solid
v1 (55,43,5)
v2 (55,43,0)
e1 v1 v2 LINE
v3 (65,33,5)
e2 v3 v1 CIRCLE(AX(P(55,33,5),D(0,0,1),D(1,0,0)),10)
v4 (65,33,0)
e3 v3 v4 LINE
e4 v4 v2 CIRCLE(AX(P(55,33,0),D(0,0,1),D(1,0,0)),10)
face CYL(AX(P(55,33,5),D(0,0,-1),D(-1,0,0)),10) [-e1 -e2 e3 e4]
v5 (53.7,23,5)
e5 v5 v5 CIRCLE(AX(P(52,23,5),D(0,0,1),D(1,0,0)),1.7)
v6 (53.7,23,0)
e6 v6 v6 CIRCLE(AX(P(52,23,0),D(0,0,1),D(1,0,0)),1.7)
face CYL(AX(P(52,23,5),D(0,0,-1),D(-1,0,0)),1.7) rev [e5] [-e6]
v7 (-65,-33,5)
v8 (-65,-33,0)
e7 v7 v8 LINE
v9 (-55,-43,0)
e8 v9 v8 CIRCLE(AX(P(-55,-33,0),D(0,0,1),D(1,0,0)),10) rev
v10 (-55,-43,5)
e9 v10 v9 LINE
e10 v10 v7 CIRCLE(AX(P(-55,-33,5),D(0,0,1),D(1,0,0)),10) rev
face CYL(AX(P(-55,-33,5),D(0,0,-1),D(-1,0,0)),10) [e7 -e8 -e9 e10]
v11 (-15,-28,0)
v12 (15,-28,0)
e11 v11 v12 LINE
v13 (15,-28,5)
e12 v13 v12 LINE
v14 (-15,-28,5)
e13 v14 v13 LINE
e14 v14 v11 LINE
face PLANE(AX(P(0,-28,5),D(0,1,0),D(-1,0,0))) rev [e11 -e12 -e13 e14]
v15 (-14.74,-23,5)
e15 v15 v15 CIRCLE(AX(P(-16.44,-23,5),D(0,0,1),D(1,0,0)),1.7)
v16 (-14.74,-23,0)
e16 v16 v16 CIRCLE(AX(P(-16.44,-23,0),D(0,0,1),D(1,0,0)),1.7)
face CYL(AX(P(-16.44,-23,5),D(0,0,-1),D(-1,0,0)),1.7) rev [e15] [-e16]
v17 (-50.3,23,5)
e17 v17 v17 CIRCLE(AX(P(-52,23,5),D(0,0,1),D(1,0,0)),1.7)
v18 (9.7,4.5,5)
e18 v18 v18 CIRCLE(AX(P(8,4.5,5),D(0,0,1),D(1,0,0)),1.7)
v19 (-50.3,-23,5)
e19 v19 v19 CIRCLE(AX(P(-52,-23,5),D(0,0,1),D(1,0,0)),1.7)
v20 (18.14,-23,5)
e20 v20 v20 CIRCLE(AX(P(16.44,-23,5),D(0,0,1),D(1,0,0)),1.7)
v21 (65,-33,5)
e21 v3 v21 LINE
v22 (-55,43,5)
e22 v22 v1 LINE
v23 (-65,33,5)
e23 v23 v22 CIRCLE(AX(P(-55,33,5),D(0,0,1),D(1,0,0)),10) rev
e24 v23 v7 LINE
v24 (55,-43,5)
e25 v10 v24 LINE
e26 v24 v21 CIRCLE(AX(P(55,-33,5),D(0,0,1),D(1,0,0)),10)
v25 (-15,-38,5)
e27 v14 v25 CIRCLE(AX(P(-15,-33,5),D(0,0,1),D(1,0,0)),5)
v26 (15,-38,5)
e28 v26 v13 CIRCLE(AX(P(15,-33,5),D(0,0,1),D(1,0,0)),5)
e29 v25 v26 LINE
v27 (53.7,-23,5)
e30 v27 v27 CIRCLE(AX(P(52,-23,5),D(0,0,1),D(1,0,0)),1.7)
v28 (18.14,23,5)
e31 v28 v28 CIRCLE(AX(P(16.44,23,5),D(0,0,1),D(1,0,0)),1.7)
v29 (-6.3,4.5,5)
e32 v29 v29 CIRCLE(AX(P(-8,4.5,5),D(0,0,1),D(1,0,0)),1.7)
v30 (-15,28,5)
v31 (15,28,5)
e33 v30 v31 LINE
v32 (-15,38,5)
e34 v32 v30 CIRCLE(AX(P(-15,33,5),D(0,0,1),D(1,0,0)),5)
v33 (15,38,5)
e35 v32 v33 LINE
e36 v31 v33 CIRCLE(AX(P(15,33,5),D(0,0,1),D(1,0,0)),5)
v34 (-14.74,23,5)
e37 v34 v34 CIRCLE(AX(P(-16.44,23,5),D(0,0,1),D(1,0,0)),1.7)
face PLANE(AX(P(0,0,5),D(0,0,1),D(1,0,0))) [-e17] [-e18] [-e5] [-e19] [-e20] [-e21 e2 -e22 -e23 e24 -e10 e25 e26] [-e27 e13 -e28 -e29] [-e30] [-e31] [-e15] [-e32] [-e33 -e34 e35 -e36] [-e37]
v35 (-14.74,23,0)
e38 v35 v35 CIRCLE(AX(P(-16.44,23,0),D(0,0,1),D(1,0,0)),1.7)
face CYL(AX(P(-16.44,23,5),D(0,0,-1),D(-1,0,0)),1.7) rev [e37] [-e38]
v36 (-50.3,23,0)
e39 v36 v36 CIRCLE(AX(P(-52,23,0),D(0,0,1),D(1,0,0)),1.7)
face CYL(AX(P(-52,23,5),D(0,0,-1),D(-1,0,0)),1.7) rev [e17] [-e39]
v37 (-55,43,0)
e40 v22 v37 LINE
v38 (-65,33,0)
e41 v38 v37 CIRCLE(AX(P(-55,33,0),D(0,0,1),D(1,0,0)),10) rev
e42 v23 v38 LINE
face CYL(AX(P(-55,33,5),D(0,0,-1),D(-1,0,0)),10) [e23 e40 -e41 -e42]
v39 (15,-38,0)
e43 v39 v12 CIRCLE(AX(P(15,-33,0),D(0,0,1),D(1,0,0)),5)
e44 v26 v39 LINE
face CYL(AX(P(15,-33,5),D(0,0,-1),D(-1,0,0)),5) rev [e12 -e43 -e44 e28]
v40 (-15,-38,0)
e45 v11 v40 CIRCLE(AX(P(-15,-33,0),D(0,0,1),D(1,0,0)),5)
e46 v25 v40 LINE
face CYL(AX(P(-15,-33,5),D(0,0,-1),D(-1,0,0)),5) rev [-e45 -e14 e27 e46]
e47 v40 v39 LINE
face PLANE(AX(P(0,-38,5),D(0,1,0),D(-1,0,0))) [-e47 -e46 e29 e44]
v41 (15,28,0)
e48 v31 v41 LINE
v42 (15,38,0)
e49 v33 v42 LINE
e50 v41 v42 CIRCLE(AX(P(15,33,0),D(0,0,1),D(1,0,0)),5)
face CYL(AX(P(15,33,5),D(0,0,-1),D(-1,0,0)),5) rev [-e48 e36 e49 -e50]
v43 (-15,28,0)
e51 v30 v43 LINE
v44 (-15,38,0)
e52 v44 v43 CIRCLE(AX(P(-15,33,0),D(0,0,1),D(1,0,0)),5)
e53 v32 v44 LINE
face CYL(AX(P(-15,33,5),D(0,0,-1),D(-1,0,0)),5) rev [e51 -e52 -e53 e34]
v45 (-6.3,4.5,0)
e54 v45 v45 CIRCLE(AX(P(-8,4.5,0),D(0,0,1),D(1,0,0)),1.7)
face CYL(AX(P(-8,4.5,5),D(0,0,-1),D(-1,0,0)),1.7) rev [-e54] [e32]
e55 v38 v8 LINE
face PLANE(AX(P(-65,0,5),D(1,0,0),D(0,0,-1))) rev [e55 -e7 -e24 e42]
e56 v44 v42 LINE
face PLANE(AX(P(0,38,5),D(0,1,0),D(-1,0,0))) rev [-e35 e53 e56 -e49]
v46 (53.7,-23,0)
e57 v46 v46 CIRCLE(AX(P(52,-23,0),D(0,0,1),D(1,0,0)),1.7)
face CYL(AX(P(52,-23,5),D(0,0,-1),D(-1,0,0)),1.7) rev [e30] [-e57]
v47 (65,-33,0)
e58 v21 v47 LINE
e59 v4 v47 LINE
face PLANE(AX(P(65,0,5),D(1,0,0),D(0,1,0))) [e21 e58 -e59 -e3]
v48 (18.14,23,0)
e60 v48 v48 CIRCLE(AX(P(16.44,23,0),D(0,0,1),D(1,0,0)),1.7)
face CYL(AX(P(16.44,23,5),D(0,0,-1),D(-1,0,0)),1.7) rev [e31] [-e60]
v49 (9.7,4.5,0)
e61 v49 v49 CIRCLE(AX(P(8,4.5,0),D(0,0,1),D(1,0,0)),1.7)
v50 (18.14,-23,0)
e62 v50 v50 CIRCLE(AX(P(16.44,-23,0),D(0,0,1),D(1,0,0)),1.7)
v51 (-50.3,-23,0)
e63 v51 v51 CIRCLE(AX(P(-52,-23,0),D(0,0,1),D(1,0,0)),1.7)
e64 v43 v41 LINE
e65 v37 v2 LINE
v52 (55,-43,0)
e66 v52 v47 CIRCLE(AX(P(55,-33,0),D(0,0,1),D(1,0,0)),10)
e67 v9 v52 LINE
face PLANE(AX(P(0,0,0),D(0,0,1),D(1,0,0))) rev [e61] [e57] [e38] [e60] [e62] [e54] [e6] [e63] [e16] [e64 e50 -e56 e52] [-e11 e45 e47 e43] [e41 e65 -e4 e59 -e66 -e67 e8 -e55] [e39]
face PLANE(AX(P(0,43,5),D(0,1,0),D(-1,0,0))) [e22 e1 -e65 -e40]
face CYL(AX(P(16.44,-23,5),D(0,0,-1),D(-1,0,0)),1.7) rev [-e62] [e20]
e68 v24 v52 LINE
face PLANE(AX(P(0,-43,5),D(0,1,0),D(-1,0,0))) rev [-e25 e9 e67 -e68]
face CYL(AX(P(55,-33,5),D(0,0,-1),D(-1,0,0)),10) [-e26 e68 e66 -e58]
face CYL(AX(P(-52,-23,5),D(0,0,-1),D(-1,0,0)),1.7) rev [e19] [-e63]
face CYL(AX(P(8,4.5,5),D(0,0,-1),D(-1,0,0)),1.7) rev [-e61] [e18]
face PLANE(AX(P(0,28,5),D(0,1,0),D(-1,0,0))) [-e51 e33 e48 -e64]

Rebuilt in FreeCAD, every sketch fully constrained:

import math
import FreeCAD as App
import Part
import Sketcher
from FreeCAD import Vector
Q = App.Units.Quantity

doc = App.newDocument("Part")
body = doc.addObject("PartDesign::Body", "Body")

sketch1 = doc.addObject("Sketcher::SketchObject", "Sketch")
body.addObject(sketch1)
sketch1.AttachmentSupport = (doc.XY_Plane, [""])
sketch1.MapMode = "FlatFace"
sketch1.addGeometry([
    Part.ArcOfCircle(Part.Circle(Vector(-55, 33, 0), Vector(0, 0, 1), 10), math.radians(90), math.radians(180)),
    Part.LineSegment(Vector(-65, 33, 0), Vector(-65, -33, 0)),
    Part.ArcOfCircle(Part.Circle(Vector(-55, -33, 0), Vector(0, 0, 1), 10), math.radians(180), math.radians(270)),
    Part.LineSegment(Vector(-55, -43, 0), Vector(55, -43, 0)),
    Part.ArcOfCircle(Part.Circle(Vector(55, -33, 0), Vector(0, 0, 1), 10), math.radians(-90), math.radians(0)),
    Part.LineSegment(Vector(65, -33, 0), Vector(65, 33, 0)),
    Part.ArcOfCircle(Part.Circle(Vector(55, 33, 0), Vector(0, 0, 1), 10), math.radians(0), math.radians(90)),
    Part.LineSegment(Vector(55, 43, 0), Vector(-55, 43, 0)),
    Part.Circle(Vector(-52, -23, 0), Vector(0, 0, 1), 1.7),
    Part.LineSegment(Vector(15, -38, 0), Vector(-15, -38, 0)),
    Part.ArcOfCircle(Part.Circle(Vector(-15, -33, 0), Vector(0, 0, 1), 5), math.radians(90), math.radians(270)),
    Part.LineSegment(Vector(-15, -28, 0), Vector(15, -28, 0)),
    Part.ArcOfCircle(Part.Circle(Vector(15, -33, 0), Vector(0, 0, 1), 5), math.radians(-90), math.radians(90)),
    Part.Circle(Vector(-16.44, -23, 0), Vector(0, 0, 1), 1.7),
    Part.Circle(Vector(16.44, -23, 0), Vector(0, 0, 1), 1.7),
    Part.Circle(Vector(52, -23, 0), Vector(0, 0, 1), 1.7),
    Part.Circle(Vector(-8, 4.5, 0), Vector(0, 0, 1), 1.7),
    Part.Circle(Vector(-52, 23, 0), Vector(0, 0, 1), 1.7),
    Part.Circle(Vector(-16.44, 23, 0), Vector(0, 0, 1), 1.7),
    Part.LineSegment(Vector(-15, 38, 0), Vector(15, 38, 0)),
    Part.ArcOfCircle(Part.Circle(Vector(15, 33, 0), Vector(0, 0, 1), 5), math.radians(-90), math.radians(90)),
    Part.LineSegment(Vector(15, 28, 0), Vector(-15, 28, 0)),
    Part.ArcOfCircle(Part.Circle(Vector(-15, 33, 0), Vector(0, 0, 1), 5), math.radians(90), math.radians(270)),
    Part.Circle(Vector(8, 4.5, 0), Vector(0, 0, 1), 1.7),
    Part.Circle(Vector(16.44, 23, 0), Vector(0, 0, 1), 1.7),
    Part.Circle(Vector(52, 23, 0), Vector(0, 0, 1), 1.7),
], False)
sketch1.addConstraint([
    Sketcher.Constraint("Tangent", 0, 2, 1, 1),
    Sketcher.Constraint("Tangent", 1, 2, 2, 1),
    Sketcher.Constraint("Tangent", 2, 2, 3, 1),
    Sketcher.Constraint("Tangent", 3, 2, 4, 1),
    Sketcher.Constraint("Tangent", 4, 2, 5, 1),
    Sketcher.Constraint("Tangent", 5, 2, 6, 1),
    Sketcher.Constraint("Tangent", 6, 2, 7, 1),
    Sketcher.Constraint("Tangent", 7, 2, 0, 1),
    Sketcher.Constraint("Tangent", 9, 2, 10, 2),
    Sketcher.Constraint("Tangent", 10, 1, 11, 1),
    Sketcher.Constraint("Tangent", 11, 2, 12, 2),
    Sketcher.Constraint("Tangent", 12, 1, 9, 1),
    Sketcher.Constraint("Tangent", 19, 2, 20, 2),
    Sketcher.Constraint("Tangent", 20, 1, 21, 1),
    Sketcher.Constraint("Tangent", 21, 2, 22, 2),
    Sketcher.Constraint("Tangent", 22, 1, 19, 1),
    Sketcher.Constraint("Vertical", 1),
    Sketcher.Constraint("Horizontal", 3),
    Sketcher.Constraint("Vertical", 5),
    Sketcher.Constraint("Horizontal", 7),
    Sketcher.Constraint("Horizontal", 9),
    Sketcher.Constraint("Horizontal", 11),
    Sketcher.Constraint("Horizontal", 19),
    Sketcher.Constraint("Horizontal", 21),
    Sketcher.Constraint("Equal", 0, 2),
    Sketcher.Constraint("Equal", 2, 4),
    Sketcher.Constraint("Equal", 4, 6),
    Sketcher.Constraint("Equal", 8, 13),
    Sketcher.Constraint("Equal", 13, 14),
    Sketcher.Constraint("Equal", 14, 15),
    Sketcher.Constraint("Equal", 15, 16),
    Sketcher.Constraint("Equal", 16, 17),
    Sketcher.Constraint("Equal", 17, 18),
    Sketcher.Constraint("Equal", 12, 20),
    Sketcher.Constraint("Equal", 18, 23),
    Sketcher.Constraint("Equal", 23, 24),
    Sketcher.Constraint("Equal", 24, 25),
    Sketcher.Constraint("Symmetric", 0, 3, 4, 3, -1, 1),
    Sketcher.Constraint("Symmetric", 15, 3, 17, 3, -1, 1),
    Sketcher.Constraint("Symmetric", 14, 3, 18, 3, -1, 1),
    Sketcher.Constraint("Symmetric", 10, 3, 20, 3, -1, 1),
    Sketcher.Constraint("Symmetric", 13, 3, 24, 3, -1, 1),
    Sketcher.Constraint("Symmetric", 8, 3, 25, 3, -1, 1),
    Sketcher.Constraint("Symmetric", 13, 3, 14, 3, -2),
    Sketcher.Constraint("Symmetric", 8, 3, 15, 3, -2),
    Sketcher.Constraint("Symmetric", 16, 3, 23, 3, -2),
    Sketcher.Constraint("Horizontal", 4, 3, 10, 3),
    Sketcher.Constraint("Horizontal", 8, 3, 13, 3),
    Sketcher.Constraint("Vertical", 12, 3, 20, 3),
    Sketcher.Constraint("Vertical", 10, 3, 22, 3),
    Sketcher.Constraint("Radius", 0, Q("10 mm")),
    Sketcher.Constraint("Radius", 10, Q("5 mm")),
    Sketcher.Constraint("Diameter", 8, Q("3.4 mm")),
    Sketcher.Constraint("DistanceX", 3, 1, 3, 2, Q("110 mm")),
    Sketcher.Constraint("DistanceX", 9, 2, 9, 1, Q("30 mm")),
    Sketcher.Constraint("DistanceY", 1, 2, 1, 1, Q("66 mm")),
    Sketcher.Constraint("DistanceX", 8, 3, -1, 1, Q("52 mm")),
    Sketcher.Constraint("DistanceY", 8, 3, -1, 1, Q("23 mm")),
    Sketcher.Constraint("DistanceX", 16, 3, -1, 1, Q("8 mm")),
    Sketcher.Constraint("DistanceY", -1, 1, 16, 3, Q("4.5 mm")),
    Sketcher.Constraint("DistanceX", 13, 3, -1, 1, Q("16.44 mm")),
])
pad1 = doc.addObject("PartDesign::Pad", "Pad")
body.addObject(pad1)
pad1.Profile = sketch1
pad1.Length = 5

doc.recompute()
